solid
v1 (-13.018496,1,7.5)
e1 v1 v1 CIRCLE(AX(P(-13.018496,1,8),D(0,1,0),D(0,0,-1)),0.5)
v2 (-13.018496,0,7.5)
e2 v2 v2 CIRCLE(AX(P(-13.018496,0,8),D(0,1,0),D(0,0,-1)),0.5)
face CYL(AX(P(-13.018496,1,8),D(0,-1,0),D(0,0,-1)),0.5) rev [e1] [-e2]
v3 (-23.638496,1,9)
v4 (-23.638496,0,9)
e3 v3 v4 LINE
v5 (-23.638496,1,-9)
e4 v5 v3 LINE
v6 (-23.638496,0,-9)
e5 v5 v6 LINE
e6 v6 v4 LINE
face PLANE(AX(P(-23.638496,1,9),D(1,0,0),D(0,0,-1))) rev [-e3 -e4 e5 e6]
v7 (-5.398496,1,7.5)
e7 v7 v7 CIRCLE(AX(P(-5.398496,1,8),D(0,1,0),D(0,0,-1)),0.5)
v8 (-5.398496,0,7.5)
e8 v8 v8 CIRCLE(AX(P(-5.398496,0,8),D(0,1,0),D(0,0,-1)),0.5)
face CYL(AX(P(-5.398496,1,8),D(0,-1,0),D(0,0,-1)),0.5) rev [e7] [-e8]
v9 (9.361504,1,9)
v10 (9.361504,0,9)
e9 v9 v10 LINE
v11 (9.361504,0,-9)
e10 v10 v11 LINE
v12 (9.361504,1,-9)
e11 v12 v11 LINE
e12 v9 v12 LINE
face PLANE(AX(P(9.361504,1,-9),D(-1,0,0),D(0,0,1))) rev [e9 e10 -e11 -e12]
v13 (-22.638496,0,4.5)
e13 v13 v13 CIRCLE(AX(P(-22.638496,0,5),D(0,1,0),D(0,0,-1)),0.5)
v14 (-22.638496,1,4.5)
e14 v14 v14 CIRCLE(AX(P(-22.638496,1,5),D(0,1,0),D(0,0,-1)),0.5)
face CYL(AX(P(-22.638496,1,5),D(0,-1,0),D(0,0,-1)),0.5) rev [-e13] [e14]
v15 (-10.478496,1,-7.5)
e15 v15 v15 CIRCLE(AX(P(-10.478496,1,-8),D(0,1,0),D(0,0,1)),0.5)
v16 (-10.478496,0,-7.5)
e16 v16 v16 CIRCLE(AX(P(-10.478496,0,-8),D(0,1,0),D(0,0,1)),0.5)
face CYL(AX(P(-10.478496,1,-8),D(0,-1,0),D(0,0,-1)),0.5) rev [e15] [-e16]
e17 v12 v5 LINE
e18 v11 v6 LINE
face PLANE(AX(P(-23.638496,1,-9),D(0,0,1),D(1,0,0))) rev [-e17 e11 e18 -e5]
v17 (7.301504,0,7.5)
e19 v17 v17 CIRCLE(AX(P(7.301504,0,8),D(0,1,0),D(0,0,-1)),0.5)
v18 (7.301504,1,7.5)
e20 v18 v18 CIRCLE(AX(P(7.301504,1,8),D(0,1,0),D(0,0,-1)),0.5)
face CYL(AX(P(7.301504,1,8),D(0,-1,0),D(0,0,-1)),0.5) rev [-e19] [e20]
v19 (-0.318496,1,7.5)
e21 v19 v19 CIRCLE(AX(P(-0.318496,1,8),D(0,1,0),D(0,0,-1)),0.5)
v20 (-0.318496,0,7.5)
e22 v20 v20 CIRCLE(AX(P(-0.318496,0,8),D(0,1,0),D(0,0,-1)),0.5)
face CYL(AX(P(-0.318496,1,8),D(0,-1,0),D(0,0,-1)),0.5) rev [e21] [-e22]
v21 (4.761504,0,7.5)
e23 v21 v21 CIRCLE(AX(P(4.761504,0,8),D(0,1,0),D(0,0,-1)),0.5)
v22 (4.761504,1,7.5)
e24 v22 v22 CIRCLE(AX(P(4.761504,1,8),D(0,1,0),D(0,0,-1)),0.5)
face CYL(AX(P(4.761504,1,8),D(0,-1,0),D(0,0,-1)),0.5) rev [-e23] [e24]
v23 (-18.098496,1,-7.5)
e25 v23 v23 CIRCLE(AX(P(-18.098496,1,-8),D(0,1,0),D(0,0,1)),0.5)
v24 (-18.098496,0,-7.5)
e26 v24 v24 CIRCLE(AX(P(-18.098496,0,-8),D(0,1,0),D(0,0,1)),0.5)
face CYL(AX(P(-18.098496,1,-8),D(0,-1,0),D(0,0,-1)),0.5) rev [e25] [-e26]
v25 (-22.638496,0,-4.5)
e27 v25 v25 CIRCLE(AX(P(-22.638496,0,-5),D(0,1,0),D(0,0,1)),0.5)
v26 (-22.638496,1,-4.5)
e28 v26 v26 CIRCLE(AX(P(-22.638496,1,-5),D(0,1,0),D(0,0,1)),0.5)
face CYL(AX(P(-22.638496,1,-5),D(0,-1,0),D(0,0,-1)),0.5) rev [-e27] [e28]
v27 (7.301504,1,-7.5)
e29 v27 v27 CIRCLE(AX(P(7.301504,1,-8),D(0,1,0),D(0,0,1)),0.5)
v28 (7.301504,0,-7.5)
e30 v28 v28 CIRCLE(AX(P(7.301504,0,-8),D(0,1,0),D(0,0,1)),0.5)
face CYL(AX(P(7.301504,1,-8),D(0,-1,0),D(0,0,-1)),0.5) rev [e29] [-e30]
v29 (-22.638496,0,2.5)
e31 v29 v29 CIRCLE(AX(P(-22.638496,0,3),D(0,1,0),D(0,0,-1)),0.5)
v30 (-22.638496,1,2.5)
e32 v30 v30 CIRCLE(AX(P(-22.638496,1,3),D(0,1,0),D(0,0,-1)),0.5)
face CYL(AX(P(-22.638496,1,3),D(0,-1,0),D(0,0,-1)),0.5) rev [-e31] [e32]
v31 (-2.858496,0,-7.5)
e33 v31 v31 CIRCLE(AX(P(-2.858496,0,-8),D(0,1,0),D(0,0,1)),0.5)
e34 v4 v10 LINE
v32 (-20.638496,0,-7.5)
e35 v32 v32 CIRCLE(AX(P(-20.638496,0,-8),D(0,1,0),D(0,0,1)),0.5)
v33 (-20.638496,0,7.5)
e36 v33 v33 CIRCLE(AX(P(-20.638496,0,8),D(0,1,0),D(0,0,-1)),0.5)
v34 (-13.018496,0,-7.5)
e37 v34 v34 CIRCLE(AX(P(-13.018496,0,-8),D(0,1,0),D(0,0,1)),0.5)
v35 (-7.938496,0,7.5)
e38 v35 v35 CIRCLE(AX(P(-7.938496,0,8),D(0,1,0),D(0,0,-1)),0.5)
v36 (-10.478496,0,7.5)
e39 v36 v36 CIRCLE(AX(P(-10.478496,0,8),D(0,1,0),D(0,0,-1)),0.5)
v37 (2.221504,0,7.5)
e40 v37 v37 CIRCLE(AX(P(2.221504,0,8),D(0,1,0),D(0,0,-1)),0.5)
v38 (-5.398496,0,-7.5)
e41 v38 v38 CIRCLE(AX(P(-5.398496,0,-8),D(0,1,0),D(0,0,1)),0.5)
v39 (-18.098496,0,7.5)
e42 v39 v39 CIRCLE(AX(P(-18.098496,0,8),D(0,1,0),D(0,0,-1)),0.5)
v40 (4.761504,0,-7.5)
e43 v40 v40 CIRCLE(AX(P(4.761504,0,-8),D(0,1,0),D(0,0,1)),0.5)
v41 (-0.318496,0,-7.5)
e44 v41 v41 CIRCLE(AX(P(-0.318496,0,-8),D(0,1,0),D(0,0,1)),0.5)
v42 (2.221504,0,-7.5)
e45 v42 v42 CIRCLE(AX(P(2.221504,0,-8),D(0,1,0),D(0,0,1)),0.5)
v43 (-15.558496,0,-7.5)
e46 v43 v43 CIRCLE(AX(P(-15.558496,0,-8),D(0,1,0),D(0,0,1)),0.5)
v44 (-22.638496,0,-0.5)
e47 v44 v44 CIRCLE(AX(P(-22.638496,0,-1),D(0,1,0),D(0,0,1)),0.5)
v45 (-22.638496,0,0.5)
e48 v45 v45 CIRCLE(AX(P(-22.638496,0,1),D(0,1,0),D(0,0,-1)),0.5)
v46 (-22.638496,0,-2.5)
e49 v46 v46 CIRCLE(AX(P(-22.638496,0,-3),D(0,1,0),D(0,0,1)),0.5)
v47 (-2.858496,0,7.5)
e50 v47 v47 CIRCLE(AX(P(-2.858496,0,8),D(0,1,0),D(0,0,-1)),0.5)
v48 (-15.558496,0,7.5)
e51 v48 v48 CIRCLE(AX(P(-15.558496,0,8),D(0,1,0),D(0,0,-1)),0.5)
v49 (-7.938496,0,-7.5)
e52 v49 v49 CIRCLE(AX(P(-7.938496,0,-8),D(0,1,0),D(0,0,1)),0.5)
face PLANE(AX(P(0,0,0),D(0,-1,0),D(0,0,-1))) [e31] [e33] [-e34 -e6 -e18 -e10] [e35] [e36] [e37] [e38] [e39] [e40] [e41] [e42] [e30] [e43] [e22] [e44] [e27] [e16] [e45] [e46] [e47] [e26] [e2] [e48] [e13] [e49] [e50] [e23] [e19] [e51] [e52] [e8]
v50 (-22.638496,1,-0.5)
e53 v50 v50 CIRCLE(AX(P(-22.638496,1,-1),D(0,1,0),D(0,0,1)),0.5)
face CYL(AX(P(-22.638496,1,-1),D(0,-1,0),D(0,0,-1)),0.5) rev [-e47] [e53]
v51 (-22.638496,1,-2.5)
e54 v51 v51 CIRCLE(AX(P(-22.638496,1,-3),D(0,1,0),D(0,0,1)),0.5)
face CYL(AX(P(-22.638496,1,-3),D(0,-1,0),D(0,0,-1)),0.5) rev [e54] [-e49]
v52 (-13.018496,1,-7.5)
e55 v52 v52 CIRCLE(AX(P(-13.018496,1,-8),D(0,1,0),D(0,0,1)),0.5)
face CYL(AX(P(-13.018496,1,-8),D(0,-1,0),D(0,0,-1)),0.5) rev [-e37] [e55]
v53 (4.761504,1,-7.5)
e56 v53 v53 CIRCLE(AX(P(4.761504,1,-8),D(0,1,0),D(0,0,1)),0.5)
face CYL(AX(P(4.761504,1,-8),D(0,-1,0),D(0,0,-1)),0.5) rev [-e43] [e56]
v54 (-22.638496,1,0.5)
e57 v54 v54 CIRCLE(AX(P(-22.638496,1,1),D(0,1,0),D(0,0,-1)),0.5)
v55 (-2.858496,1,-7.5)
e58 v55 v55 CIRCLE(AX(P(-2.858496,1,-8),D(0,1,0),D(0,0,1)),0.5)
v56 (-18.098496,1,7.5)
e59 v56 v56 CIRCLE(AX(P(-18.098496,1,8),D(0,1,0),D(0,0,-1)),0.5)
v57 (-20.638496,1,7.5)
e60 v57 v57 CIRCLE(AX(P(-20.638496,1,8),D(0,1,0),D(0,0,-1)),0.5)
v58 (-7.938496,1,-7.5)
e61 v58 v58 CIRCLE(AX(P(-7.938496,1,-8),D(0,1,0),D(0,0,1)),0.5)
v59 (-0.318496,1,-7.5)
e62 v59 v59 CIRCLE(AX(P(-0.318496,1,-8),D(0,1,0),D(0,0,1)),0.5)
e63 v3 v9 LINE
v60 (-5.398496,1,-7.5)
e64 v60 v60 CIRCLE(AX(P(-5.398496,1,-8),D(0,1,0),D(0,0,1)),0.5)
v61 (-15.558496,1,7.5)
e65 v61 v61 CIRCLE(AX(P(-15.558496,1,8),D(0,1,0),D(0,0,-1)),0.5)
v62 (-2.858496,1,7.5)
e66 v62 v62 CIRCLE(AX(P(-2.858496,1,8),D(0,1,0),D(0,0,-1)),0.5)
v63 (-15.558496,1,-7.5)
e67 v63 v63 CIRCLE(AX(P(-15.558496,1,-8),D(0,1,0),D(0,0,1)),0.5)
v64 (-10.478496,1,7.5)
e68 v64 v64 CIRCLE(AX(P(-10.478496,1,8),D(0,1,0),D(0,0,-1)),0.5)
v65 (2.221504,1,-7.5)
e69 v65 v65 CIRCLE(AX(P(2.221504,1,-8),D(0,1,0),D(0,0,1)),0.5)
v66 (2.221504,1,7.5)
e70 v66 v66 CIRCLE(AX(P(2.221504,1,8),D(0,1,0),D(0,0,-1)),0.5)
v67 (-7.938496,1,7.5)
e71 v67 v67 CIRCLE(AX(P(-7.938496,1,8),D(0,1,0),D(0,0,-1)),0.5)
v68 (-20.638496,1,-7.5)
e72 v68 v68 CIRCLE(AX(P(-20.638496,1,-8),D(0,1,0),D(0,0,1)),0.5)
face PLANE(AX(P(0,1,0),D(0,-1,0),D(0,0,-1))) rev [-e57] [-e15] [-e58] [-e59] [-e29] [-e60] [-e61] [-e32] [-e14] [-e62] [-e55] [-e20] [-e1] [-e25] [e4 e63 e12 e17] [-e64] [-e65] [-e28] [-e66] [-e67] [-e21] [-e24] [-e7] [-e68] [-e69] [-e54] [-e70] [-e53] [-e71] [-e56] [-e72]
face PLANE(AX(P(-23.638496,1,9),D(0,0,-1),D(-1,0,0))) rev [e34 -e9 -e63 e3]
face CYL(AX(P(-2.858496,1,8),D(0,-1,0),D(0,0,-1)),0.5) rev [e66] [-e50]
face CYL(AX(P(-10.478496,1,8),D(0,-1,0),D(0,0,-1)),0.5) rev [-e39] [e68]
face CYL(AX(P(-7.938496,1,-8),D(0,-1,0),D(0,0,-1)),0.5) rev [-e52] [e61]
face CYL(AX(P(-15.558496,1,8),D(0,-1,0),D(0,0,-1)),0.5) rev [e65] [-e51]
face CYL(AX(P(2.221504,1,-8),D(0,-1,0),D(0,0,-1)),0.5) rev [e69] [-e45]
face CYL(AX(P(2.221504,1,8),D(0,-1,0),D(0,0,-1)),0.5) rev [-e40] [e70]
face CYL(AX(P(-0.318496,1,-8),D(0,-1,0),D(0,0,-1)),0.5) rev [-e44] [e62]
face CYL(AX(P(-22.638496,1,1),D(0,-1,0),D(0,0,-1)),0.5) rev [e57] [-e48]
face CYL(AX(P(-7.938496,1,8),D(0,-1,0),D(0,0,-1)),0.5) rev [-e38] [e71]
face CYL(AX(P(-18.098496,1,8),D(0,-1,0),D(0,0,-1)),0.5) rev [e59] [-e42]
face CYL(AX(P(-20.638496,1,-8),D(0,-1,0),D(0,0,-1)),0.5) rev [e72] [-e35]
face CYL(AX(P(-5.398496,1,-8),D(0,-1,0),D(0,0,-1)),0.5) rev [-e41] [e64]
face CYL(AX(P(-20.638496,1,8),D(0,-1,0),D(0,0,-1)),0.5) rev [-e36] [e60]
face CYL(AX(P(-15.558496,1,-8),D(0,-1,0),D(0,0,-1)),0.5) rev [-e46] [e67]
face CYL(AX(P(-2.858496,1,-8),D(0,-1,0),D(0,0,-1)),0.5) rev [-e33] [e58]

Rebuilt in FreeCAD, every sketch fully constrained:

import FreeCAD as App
import Part
import Sketcher
from FreeCAD import Vector
Q = App.Units.Quantity

doc = App.newDocument("Part")
body = doc.addObject("PartDesign::Body", "Body")

sketch1 = body.newObject("Sketcher::SketchObject", "Sketch")
sketch1.AttachmentSupport = (doc.getObject("XZ_Plane"), [""])
sketch1.MapMode = "FlatFace"
sketch1.addGeometry([
    Part.LineSegment(Vector(-23.638496, -9, 0), Vector(-23.638496, 9, 0)),
    Part.LineSegment(Vector(-23.638496, 9, 0), Vector(9.361504, 9, 0)),
    Part.LineSegment(Vector(9.361504, 9, 0), Vector(9.361504, -9, 0)),
    Part.LineSegment(Vector(9.361504, -9, 0), Vector(-23.638496, -9, 0)),
    Part.Circle(Vector(-20.638496, 8, 0), Vector(0, 0, 1), 0.5),
    Part.Circle(Vector(-18.098496, 8, 0), Vector(0, 0, 1), 0.5),
    Part.Circle(Vector(-15.558496, 8, 0), Vector(0, 0, 1), 0.5),
    Part.Circle(Vector(-22.638496, 5, 0), Vector(0, 0, 1), 0.5),
    Part.Circle(Vector(-13.018496, 8, 0), Vector(0, 0, 1), 0.5),
    Part.Circle(Vector(-10.478496, 8, 0), Vector(0, 0, 1), 0.5),
    Part.Circle(Vector(-7.938496, 8, 0), Vector(0, 0, 1), 0.5),
    Part.Circle(Vector(-22.638496, 3, 0), Vector(0, 0, 1), 0.5),
    Part.Circle(Vector(-22.638496, 1, 0), Vector(0, 0, 1), 0.5),
    Part.Circle(Vector(-5.398496, 8, 0), Vector(0, 0, 1), 0.5),
    Part.Circle(Vector(-2.858496, 8, 0), Vector(0, 0, 1), 0.5),
    Part.Circle(Vector(-0.318496, 8, 0), Vector(0, 0, 1), 0.5),
    Part.Circle(Vector(2.221504, 8, 0), Vector(0, 0, 1), 0.5),
    Part.Circle(Vector(4.761504, 8, 0), Vector(0, 0, 1), 0.5),
    Part.Circle(Vector(7.301504, 8, 0), Vector(0, 0, 1), 0.5),
    Part.Circle(Vector(-22.638496, -1, 0), Vector(0, 0, 1), 0.5),
    Part.Circle(Vector(-22.638496, -3, 0), Vector(0, 0, 1), 0.5),
    Part.Circle(Vector(-22.638496, -5, 0), Vector(0, 0, 1), 0.5),
    Part.Circle(Vector(-20.638496, -8, 0), Vector(0, 0, 1), 0.5),
    Part.Circle(Vector(-18.098496, -8, 0), Vector(0, 0, 1), 0.5),
    Part.Circle(Vector(-15.558496, -8, 0), Vector(0, 0, 1), 0.5),
    Part.Circle(Vector(-13.018496, -8, 0), Vector(0, 0, 1), 0.5),
    Part.Circle(Vector(-10.478496, -8, 0), Vector(0, 0, 1), 0.5),
    Part.Circle(Vector(-7.938496, -8, 0), Vector(0, 0, 1), 0.5),
    Part.Circle(Vector(-5.398496, -8, 0), Vector(0, 0, 1), 0.5),
    Part.Circle(Vector(-2.858496, -8, 0), Vector(0, 0, 1), 0.5),
    Part.Circle(Vector(-0.318496, -8, 0), Vector(0, 0, 1), 0.5),
    Part.Circle(Vector(2.221504, -8, 0), Vector(0, 0, 1), 0.5),
    Part.Circle(Vector(4.761504, -8, 0), Vector(0, 0, 1), 0.5),
    Part.Circle(Vector(7.301504, -8, 0), Vector(0, 0, 1), 0.5),
], False)
sketch1.addConstraint([
    Sketcher.Constraint("Coincident", 0, 2, 1, 1),
    Sketcher.Constraint("Coincident", 1, 2, 2, 1),
    Sketcher.Constraint("Coincident", 2, 2, 3, 1),
    Sketcher.Constraint("Coincident", 3, 2, 0, 1),
    Sketcher.Constraint("Vertical", 0),
    Sketcher.Constraint("Horizontal", 1),
    Sketcher.Constraint("Vertical", 2),
    Sketcher.Constraint("Horizontal", 3),
    Sketcher.Constraint("Equal", 4, 5),
    Sketcher.Constraint("Equal", 5, 6),
    Sketcher.Constraint("Equal", 6, 7),
    Sketcher.Constraint("Equal", 7, 8),
    Sketcher.Constraint("Equal", 8, 9),
    Sketcher.Constraint("Equal", 9, 10),
    Sketcher.Constraint("Equal", 10, 11),
    Sketcher.Constraint("Equal", 11, 12),
    Sketcher.Constraint("Equal", 12, 13),
    Sketcher.Constraint("Equal", 13, 14),
    Sketcher.Constraint("Equal", 14, 15),
    Sketcher.Constraint("Equal", 15, 16),
    Sketcher.Constraint("Equal", 16, 17),
    Sketcher.Constraint("Equal", 17, 18),
    Sketcher.Constraint("Equal", 18, 19),
    Sketcher.Constraint("Equal", 19, 20),
    Sketcher.Constraint("Equal", 20, 21),
    Sketcher.Constraint("Equal", 21, 22),
    Sketcher.Constraint("Equal", 22, 23),
    Sketcher.Constraint("Equal", 23, 24),
    Sketcher.Constraint("Equal", 24, 25),
    Sketcher.Constraint("Equal", 25, 26),
    Sketcher.Constraint("Equal", 26, 27),
    Sketcher.Constraint("Equal", 27, 28),
    Sketcher.Constraint("Equal", 28, 29),
    Sketcher.Constraint("Equal", 29, 30),
    Sketcher.Constraint("Equal", 30, 31),
    Sketcher.Constraint("Equal", 31, 32),
    Sketcher.Constraint("Equal", 32, 33),
    Sketcher.Constraint("Symmetric", 12, 3, 19, 3, -1),
    Sketcher.Constraint("Symmetric", 11, 3, 20, 3, -1),
    Sketcher.Constraint("Symmetric", 7, 3, 21, 3, -1),
    Sketcher.Constraint("Symmetric", 4, 3, 22, 3, -1),
    Sketcher.Constraint("Symmetric", 5, 3, 23, 3, -1),
    Sketcher.Constraint("Symmetric", 6, 3, 24, 3, -1),
    Sketcher.Constraint("Symmetric", 8, 3, 25, 3, -1),
    Sketcher.Constraint("Symmetric", 9, 3, 26, 3, -1),
    Sketcher.Constraint("Symmetric", 10, 3, 27, 3, -1),
    Sketcher.Constraint("Symmetric", 13, 3, 28, 3, -1),
    Sketcher.Constraint("Symmetric", 14, 3, 29, 3, -1),
    Sketcher.Constraint("Symmetric", 15, 3, 30, 3, -1),
    Sketcher.Constraint("Symmetric", 16, 3, 31, 3, -1),
    Sketcher.Constraint("Symmetric", 17, 3, 32, 3, -1),
    Sketcher.Constraint("Symmetric", 18, 3, 33, 3, -1),
    Sketcher.Constraint("Horizontal", 4, 3, 5, 3),
    Sketcher.Constraint("Horizontal", 5, 3, 6, 3),
    Sketcher.Constraint("Horizontal", 6, 3, 8, 3),
    Sketcher.Constraint("Horizontal", 8, 3, 9, 3),
    Sketcher.Constraint("Horizontal", 9, 3, 10, 3),
    Sketcher.Constraint("Horizontal", 10, 3, 13, 3),
    Sketcher.Constraint("Horizontal", 13, 3, 14, 3),
    Sketcher.Constraint("Horizontal", 14, 3, 15, 3),
    Sketcher.Constraint("Horizontal", 15, 3, 16, 3),
    Sketcher.Constraint("Horizontal", 16, 3, 17, 3),
    Sketcher.Constraint("Horizontal", 17, 3, 18, 3),
    Sketcher.Constraint("Vertical", 7, 3, 11, 3),
    Sketcher.Constraint("Vertical", 11, 3, 12, 3),
    Sketcher.Constraint("Diameter", 4, Q("1 mm")),
    Sketcher.Constraint("DistanceX", 1, 1, 1, 2, Q("33 mm")),
    Sketcher.Constraint("DistanceY", 0, 1, 0, 2, Q("18 mm")),
    Sketcher.Constraint("DistanceY", -1, 1, 4, 3, Q("8 mm")),
    Sketcher.Constraint("DistanceY", -1, 1, 7, 3, Q("5 mm")),
    Sketcher.Constraint("DistanceY", -1, 1, 11, 3, Q("3 mm")),
    Sketcher.Constraint("DistanceY", -1, 1, 12, 3, Q("1 mm")),
    Sketcher.Constraint("DistanceY", -1, 1, 0, 2, Q("9 mm")),
    Sketcher.Constraint("DistanceX", 7, 3, 4, 3, Q("2 mm")),
    Sketcher.Constraint("DistanceX", 0, 2, 4, 3, Q("3 mm")),
    Sketcher.Constraint("DistanceX", 4, 3, 10, 3, Q("12.7 mm")),
    Sketcher.Constraint("DistanceX", 5, 3, 13, 3, Q("12.7 mm")),
    Sketcher.Constraint("DistanceX", 6, 3, 14, 3, Q("12.7 mm")),
    Sketcher.Constraint("DistanceX", 8, 3, 15, 3, Q("12.7 mm")),
    Sketcher.Constraint("DistanceX", 9, 3, 16, 3, Q("12.7 mm")),
    Sketcher.Constraint("DistanceX", 10, 3, 17, 3, Q("12.7 mm")),
    Sketcher.Constraint("DistanceX", 13, 3, 18, 3, Q("12.7 mm")),
    Sketcher.Constraint("DistanceX", 4, 3, 5, 3, Q("2.54 mm")),
    Sketcher.Constraint("DistanceX", 5, 3, 6, 3, Q("2.54 mm")),
    Sketcher.Constraint("DistanceX", 6, 3, 8, 3, Q("2.54 mm")),
    Sketcher.Constraint("DistanceX", 8, 3, 9, 3, Q("2.54 mm")),
    Sketcher.Constraint("DistanceX", 4, 3, -1, 1, Q("20.638496 mm")),
])
pad1 = body.newObject("PartDesign::Pad", "Pad")
pad1.Profile = sketch1
pad1.Length = 1
pad1.Reversed = True

doc.recompute()
